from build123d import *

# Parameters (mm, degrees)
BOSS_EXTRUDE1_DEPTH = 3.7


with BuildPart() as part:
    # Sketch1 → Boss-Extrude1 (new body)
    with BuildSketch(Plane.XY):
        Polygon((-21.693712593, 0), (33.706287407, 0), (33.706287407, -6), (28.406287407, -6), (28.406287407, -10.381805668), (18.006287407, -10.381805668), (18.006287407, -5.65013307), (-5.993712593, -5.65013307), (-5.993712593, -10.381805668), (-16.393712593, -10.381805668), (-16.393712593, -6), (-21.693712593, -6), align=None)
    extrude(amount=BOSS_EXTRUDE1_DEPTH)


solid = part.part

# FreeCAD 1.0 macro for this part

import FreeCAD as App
import Part
import Sketcher

V = App.Vector
Q = App.Units.Quantity


def add_polygon(sketch, points):
    """Adds a closed chain of lines whose ends are joined by coincident constraints."""
    first, n = sketch.GeometryCount, len(points)
    for a, b in zip(points, points[1:] + points[:1]):
        sketch.addGeometry(Part.LineSegment(App.Vector(*a, 0), App.Vector(*b, 0)), False)
    for i in range(n):
        sketch.addConstraint(Sketcher.Constraint("Coincident", first + i, 2, first + (i + 1) % n, 1))

doc = App.newDocument("Part")
body = doc.addObject("PartDesign::Body", "Body")

# Sketch on XY plane
sketch1 = body.newObject("Sketcher::SketchObject", "Sketch")
sketch1.AttachmentSupport = (doc.getObject("XY_Plane"), [""])
sketch1.MapMode = "FlatFace"
add_polygon(sketch1, [(33.706287, 0), (-21.693713, 0), (-21.693713, -6), (-16.393713, -6), (-16.393713, -10.381806), (-5.993713, -10.381806), (-5.993713, -5.650133), (18.006287, -5.650133), (18.006287, -10.381806), (28.406287, -10.381806), (28.406287, -6), (33.706287, -6)])  # lines 0-11
sketch1.addConstraint(Sketcher.Constraint("Horizontal", 0))
sketch1.addConstraint(Sketcher.Constraint("Vertical", 1))
sketch1.addConstraint(Sketcher.Constraint("Horizontal", 2))
sketch1.addConstraint(Sketcher.Constraint("Vertical", 3))
sketch1.addConstraint(Sketcher.Constraint("Horizontal", 4))
sketch1.addConstraint(Sketcher.Constraint("Vertical", 5))
sketch1.addConstraint(Sketcher.Constraint("Horizontal", 6))
sketch1.addConstraint(Sketcher.Constraint("Vertical", 7))
sketch1.addConstraint(Sketcher.Constraint("Horizontal", 8))
sketch1.addConstraint(Sketcher.Constraint("Vertical", 9))
sketch1.addConstraint(Sketcher.Constraint("Horizontal", 10))
sketch1.addConstraint(Sketcher.Constraint("Vertical", 11))
sketch1.addConstraint(Sketcher.Constraint("PointOnObject", 0, 2, -1))
sketch1.addConstraint(Sketcher.Constraint("Horizontal", 4, 2, 7, 2))
sketch1.addConstraint(Sketcher.Constraint("Horizontal", 2, 2, 9, 2))
sketch1.addConstraint(Sketcher.Constraint("Equal", 4, 8))
sketch1.addConstraint(Sketcher.Constraint("Equal", 2, 10))
sketch1.addConstraint(Sketcher.Constraint("DistanceX", 6, 1, 6, 2, Q("24 mm")))
sketch1.addConstraint(Sketcher.Constraint("DistanceY", 1, 2, 1, 1, Q("6 mm")))
sketch1.addConstraint(Sketcher.Constraint("DistanceX", 0, 2, 0, 1, Q("55.4 mm")))
sketch1.addConstraint(Sketcher.Constraint("DistanceX", 2, 1, 2, 2, Q("5.3 mm")))
sketch1.addConstraint(Sketcher.Constraint("DistanceY", 3, 2, 3, 1, Q("4.381806 mm")))
sketch1.addConstraint(Sketcher.Constraint("DistanceY", 5, 1, 5, 2, Q("4.731673 mm")))
sketch1.addConstraint(Sketcher.Constraint("DistanceX", 0, 2, -1, 1, Q("21.693713 mm")))
pad1 = body.newObject("PartDesign::Pad", "Pad")
pad1.Profile = sketch1
pad1.Length = 3.7

doc.recompute()
